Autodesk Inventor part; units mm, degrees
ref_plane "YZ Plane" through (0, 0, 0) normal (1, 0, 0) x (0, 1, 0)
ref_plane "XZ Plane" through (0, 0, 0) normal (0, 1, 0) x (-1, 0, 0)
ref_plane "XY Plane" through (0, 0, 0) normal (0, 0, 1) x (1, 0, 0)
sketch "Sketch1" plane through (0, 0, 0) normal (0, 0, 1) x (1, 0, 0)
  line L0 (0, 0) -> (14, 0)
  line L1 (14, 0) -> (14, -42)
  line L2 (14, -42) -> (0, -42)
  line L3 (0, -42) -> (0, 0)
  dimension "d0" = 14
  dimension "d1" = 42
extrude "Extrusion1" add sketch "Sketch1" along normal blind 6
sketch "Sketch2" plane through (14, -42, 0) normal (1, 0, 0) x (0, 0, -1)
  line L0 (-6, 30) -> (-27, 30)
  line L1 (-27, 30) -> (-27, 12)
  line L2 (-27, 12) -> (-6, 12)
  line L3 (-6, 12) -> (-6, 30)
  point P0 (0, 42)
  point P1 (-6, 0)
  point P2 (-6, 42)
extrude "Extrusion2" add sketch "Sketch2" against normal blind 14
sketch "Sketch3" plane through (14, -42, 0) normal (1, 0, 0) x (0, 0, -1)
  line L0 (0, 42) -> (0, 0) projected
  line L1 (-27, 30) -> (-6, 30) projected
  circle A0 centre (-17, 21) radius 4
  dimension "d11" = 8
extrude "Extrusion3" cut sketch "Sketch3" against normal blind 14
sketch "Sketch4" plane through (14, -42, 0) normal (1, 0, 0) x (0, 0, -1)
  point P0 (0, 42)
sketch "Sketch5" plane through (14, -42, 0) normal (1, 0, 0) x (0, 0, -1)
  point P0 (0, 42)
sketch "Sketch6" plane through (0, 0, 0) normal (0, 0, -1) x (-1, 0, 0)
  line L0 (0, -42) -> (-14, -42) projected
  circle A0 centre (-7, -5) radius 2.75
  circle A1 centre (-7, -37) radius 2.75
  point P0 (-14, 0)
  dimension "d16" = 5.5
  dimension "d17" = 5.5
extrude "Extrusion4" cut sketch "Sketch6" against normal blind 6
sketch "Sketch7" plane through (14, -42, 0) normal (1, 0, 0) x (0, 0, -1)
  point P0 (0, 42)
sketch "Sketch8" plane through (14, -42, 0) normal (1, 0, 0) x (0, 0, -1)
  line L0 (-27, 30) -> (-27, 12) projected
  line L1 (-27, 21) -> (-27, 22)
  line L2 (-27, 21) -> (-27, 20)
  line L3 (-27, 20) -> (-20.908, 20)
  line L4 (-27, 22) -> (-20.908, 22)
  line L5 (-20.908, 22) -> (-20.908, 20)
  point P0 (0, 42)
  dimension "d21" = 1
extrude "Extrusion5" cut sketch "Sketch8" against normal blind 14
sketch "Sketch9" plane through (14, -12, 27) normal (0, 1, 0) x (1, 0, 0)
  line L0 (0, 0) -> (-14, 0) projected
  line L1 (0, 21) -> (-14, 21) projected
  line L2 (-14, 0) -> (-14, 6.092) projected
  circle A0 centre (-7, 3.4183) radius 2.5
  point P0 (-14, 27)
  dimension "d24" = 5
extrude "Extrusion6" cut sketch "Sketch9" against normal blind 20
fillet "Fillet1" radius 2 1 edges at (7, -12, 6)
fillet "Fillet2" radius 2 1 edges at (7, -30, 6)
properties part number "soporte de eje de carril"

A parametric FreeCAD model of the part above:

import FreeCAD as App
import Part
import Sketcher
Q = App.Units.Quantity


def edges_at(feature, points):
    """Names of the edges that pass closest to the given points."""
    edges = feature.Shape.Edges
    near = lambda p: min(range(len(edges)), key=lambda i: edges[i].distToShape(Part.Vertex(*p))[0])
    return sorted({f"Edge{near(p) + 1}" for p in points})

doc = App.newDocument("Part")
body = doc.addObject("PartDesign::Body", "Body")

sketch1 = body.newObject("Sketcher::SketchObject", "Sketch")
sketch1.AttachmentSupport = (doc.getObject("XY_Plane"), [""])
sketch1.MapMode = "FlatFace"
sketch1.addGeometry(Part.LineSegment(App.Vector(14, 0, 0), App.Vector(0, 0, 0)), False)
sketch1.addGeometry(Part.LineSegment(App.Vector(0, 0, 0), App.Vector(0, -42, 0)), False)
sketch1.addGeometry(Part.LineSegment(App.Vector(0, -42, 0), App.Vector(14, -42, 0)), False)
sketch1.addGeometry(Part.LineSegment(App.Vector(14, -42, 0), App.Vector(14, 0, 0)), False)
sketch1.addConstraint(Sketcher.Constraint("Coincident", 0, 2, 1, 1))
sketch1.addConstraint(Sketcher.Constraint("Coincident", 1, 2, 2, 1))
sketch1.addConstraint(Sketcher.Constraint("Coincident", 2, 2, 3, 1))
sketch1.addConstraint(Sketcher.Constraint("Coincident", 3, 2, 0, 1))
sketch1.addConstraint(Sketcher.Constraint("Horizontal", 0))
sketch1.addConstraint(Sketcher.Constraint("Vertical", 1))
sketch1.addConstraint(Sketcher.Constraint("Horizontal", 2))
sketch1.addConstraint(Sketcher.Constraint("Vertical", 3))
sketch1.addConstraint(Sketcher.Constraint("Coincident", 0, 2, -1, 1))
sketch1.addConstraint(Sketcher.Constraint("DistanceX", 0, 2, 0, 1, Q("14 mm")))
sketch1.addConstraint(Sketcher.Constraint("DistanceY", 1, 2, 1, 1, Q("42 mm")))
pad1 = body.newObject("PartDesign::Pad", "Pad")
pad1.Profile = sketch1
pad1.Length = 6

sketch2 = body.newObject("Sketcher::SketchObject", "Sketch001")
sketch2.AttachmentSupport = (doc.getObject("YZ_Plane"), [""])
sketch2.MapMode = "FlatFace"
sketch2.AttachmentOffset = App.Placement(App.Vector(0, 0, 14), App.Rotation())
sketch2.addGeometry(Part.LineSegment(App.Vector(-30, 6, 0), App.Vector(-12, 6, 0)), False)
sketch2.addGeometry(Part.LineSegment(App.Vector(-12, 6, 0), App.Vector(-12, 27, 0)), False)
sketch2.addGeometry(Part.LineSegment(App.Vector(-12, 27, 0), App.Vector(-30, 27, 0)), False)
sketch2.addGeometry(Part.LineSegment(App.Vector(-30, 27, 0), App.Vector(-30, 6, 0)), False)
sketch2.addConstraint(Sketcher.Constraint("Coincident", 0, 2, 1, 1))
sketch2.addConstraint(Sketcher.Constraint("Coincident", 1, 2, 2, 1))
sketch2.addConstraint(Sketcher.Constraint("Coincident", 2, 2, 3, 1))
sketch2.addConstraint(Sketcher.Constraint("Coincident", 3, 2, 0, 1))
sketch2.addConstraint(Sketcher.Constraint("Horizontal", 0))
sketch2.addConstraint(Sketcher.Constraint("Vertical", 1))
sketch2.addConstraint(Sketcher.Constraint("Horizontal", 2))
sketch2.addConstraint(Sketcher.Constraint("Vertical", 3))
sketch2.addConstraint(Sketcher.Constraint("DistanceX", 0, 1, 0, 2, Q("18 mm")))
sketch2.addConstraint(Sketcher.Constraint("DistanceY", 1, 1, 1, 2, Q("21 mm")))
sketch2.addConstraint(Sketcher.Constraint("DistanceX", 0, 2, -1, 1, Q("12 mm")))
sketch2.addConstraint(Sketcher.Constraint("DistanceY", -1, 1, 0, 2, Q("6 mm")))
pad2 = body.newObject("PartDesign::Pad", "Pad001")
pad2.Profile = sketch2
pad2.Length = 14
pad2.Reversed = True

sketch3 = body.newObject("Sketcher::SketchObject", "Sketch002")
sketch3.AttachmentSupport = (doc.getObject("YZ_Plane"), [""])
sketch3.MapMode = "FlatFace"
sketch3.AttachmentOffset = App.Placement(App.Vector(0, 0, 14), App.Rotation())
sketch3.addGeometry(Part.Circle(App.Vector(-21, 17, 0), App.Vector(0, 0, 1), 4), False)
sketch3.addConstraint(Sketcher.Constraint("Diameter", 0, Q("8 mm")))
sketch3.addConstraint(Sketcher.Constraint("DistanceX", 0, 3, -1, 1, Q("21 mm")))
sketch3.addConstraint(Sketcher.Constraint("DistanceY", -1, 1, 0, 3, Q("17 mm")))
pocket1 = body.newObject("PartDesign::Pocket", "Pocket")
pocket1.Profile = sketch3
pocket1.Length = 14

sketch4 = body.newObject("Sketcher::SketchObject", "Sketch003")
sketch4.AttachmentSupport = (doc.getObject("XY_Plane"), [""])
sketch4.MapMode = "FlatFace"
sketch4.addGeometry(Part.Circle(App.Vector(7, -5, 0), App.Vector(0, 0, 1), 2.75), False)
sketch4.addGeometry(Part.Circle(App.Vector(7, -37, 0), App.Vector(0, 0, 1), 2.75), False)
sketch4.addConstraint(Sketcher.Constraint("Equal", 0, 1))
sketch4.addConstraint(Sketcher.Constraint("Vertical", 0, 3, 1, 3))
sketch4.addConstraint(Sketcher.Constraint("Diameter", 0, Q("5.5 mm")))
sketch4.addConstraint(Sketcher.Constraint("DistanceX", -1, 1, 0, 3, Q("7 mm")))
sketch4.addConstraint(Sketcher.Constraint("DistanceY", 0, 3, -1, 1, Q("5 mm")))
sketch4.addConstraint(Sketcher.Constraint("DistanceY", 1, 3, -1, 1, Q("37 mm")))
pocket2 = body.newObject("PartDesign::Pocket", "Pocket001")
pocket2.Profile = sketch4
pocket2.Length = 6
pocket2.Reversed = True

sketch5 = body.newObject("Sketcher::SketchObject", "Sketch004")
sketch5.AttachmentSupport = (doc.getObject("YZ_Plane"), [""])
sketch5.MapMode = "FlatFace"
sketch5.AttachmentOffset = App.Placement(App.Vector(0, 0, 14), App.Rotation())
sketch5.addGeometry(Part.LineSegment(App.Vector(-20, 20.908, 0), App.Vector(-20, 27, 0)), False)
sketch5.addGeometry(Part.LineSegment(App.Vector(-20, 27, 0), App.Vector(-22, 27, 0)), False)
sketch5.addGeometry(Part.LineSegment(App.Vector(-22, 27, 0), App.Vector(-22, 20.908, 0)), False)
sketch5.addGeometry(Part.LineSegment(App.Vector(-22, 20.908, 0), App.Vector(-20, 20.908, 0)), False)
sketch5.addConstraint(Sketcher.Constraint("Coincident", 0, 2, 1, 1))
sketch5.addConstraint(Sketcher.Constraint("Coincident", 1, 2, 2, 1))
sketch5.addConstraint(Sketcher.Constraint("Coincident", 2, 2, 3, 1))
sketch5.addConstraint(Sketcher.Constraint("Coincident", 3, 2, 0, 1))
sketch5.addConstraint(Sketcher.Constraint("Vertical", 0))
sketch5.addConstraint(Sketcher.Constraint("Horizontal", 1))
sketch5.addConstraint(Sketcher.Constraint("Vertical", 2))
sketch5.addConstraint(Sketcher.Constraint("Horizontal", 3))
sketch5.addConstraint(Sketcher.Constraint("DistanceX", 1, 2, 1, 1, Q("2 mm")))
sketch5.addConstraint(Sketcher.Constraint("DistanceX", 0, 2, -1, 1, Q("20 mm")))
sketch5.addConstraint(Sketcher.Constraint("DistanceY", -1, 1, 0, 2, Q("27 mm")))
sketch5.addConstraint(Sketcher.Constraint("DistanceY", 0, 1, 0, 2, Q("6.092 mm")))
pocket3 = body.newObject("PartDesign::Pocket", "Pocket002")
pocket3.Profile = sketch5
pocket3.Length = 14

sketch6 = body.newObject("Sketcher::SketchObject", "Sketch005")
sketch6.AttachmentSupport = (doc.getObject("XZ_Plane"), [""])
sketch6.MapMode = "FlatFace"
sketch6.AttachmentOffset = App.Placement(App.Vector(0, 0, 12), App.Rotation())
sketch6.addGeometry(Part.Circle(App.Vector(7, 23.5817, 0), App.Vector(0, 0, 1), 2.5), False)
sketch6.addConstraint(Sketcher.Constraint("Diameter", 0, Q("5 mm")))
sketch6.addConstraint(Sketcher.Constraint("DistanceX", -1, 1, 0, 3, Q("7 mm")))
sketch6.addConstraint(Sketcher.Constraint("DistanceY", -1, 1, 0, 3, Q("23.5817 mm")))
pocket4 = body.newObject("PartDesign::Pocket", "Pocket003")
pocket4.Profile = sketch6
pocket4.Length = 20
pocket4.Reversed = True
doc.recompute()

fillet = body.newObject("PartDesign::Fillet", "Fillet")
fillet.Base = (pocket4, edges_at(pocket4, [(7, -12, 6)]))
fillet.Radius = 2
doc.recompute()

fillet2 = body.newObject("PartDesign::Fillet", "Fillet001")
fillet2.Base = (fillet, edges_at(fillet, [(7, -30, 6)]))
fillet2.Radius = 2

doc.recompute()
